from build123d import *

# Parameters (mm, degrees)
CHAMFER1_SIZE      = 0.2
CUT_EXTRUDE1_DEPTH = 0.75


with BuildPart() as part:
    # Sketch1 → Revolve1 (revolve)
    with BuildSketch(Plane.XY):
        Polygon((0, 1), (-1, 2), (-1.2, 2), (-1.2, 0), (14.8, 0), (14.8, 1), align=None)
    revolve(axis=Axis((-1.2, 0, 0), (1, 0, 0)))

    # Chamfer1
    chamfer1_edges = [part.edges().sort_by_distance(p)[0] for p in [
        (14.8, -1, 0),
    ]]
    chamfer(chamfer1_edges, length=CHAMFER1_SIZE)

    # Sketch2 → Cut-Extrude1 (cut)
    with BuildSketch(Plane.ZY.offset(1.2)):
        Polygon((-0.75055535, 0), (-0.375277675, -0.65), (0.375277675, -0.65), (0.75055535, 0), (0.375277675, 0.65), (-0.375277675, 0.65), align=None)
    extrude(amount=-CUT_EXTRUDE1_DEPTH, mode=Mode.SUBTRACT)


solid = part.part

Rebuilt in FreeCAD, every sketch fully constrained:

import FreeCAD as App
import Part
import Sketcher
from FreeCAD import Vector
Q = App.Units.Quantity


def edges_at(feature, points):
    """Names of the edges that pass closest to the given points."""
    edges = feature.Shape.Edges
    near = lambda p: min(range(len(edges)), key=lambda i: edges[i].distToShape(Part.Vertex(*p))[0])
    return sorted({f"Edge{near(p) + 1}" for p in points})


def add_polygon(sketch, points):
    """Adds a closed chain of lines whose ends are joined by coincident constraints."""
    first, n = sketch.GeometryCount, len(points)
    for a, b in zip(points, points[1:] + points[:1]):
        sketch.addGeometry(Part.LineSegment(App.Vector(*a, 0), App.Vector(*b, 0)), False)
    for i in range(n):
        sketch.addConstraint(Sketcher.Constraint("Coincident", first + i, 2, first + (i + 1) % n, 1))

doc = App.newDocument("Part")
body = doc.addObject("PartDesign::Body", "Body")

# Sketch on XY plane
sketch1 = doc.addObject("Sketcher::SketchObject", "Sketch")
body.addObject(sketch1)
sketch1.AttachmentSupport = (doc.XY_Plane, [""])
sketch1.MapMode = "FlatFace"
add_polygon(sketch1, [(0, 1), (-1, 2), (-1.2, 2), (-1.2, 0), (14.8, 0), (14.8, 1)])  # lines 0-5
sketch1.addConstraint([
    Sketcher.Constraint("Horizontal", 1),
    Sketcher.Constraint("Vertical", 2),
    Sketcher.Constraint("Horizontal", 3),
    Sketcher.Constraint("Vertical", 4),
    Sketcher.Constraint("Horizontal", 5),
    Sketcher.Constraint("PointOnObject", 2, 2, -1),
    Sketcher.Constraint("PointOnObject", 5, 2, -2),
    Sketcher.Constraint("DistanceX", 3, 1, 3, 2, 16.0),
    Sketcher.Constraint("DistanceY", 2, 2, 2, 1, 2.0),
    Sketcher.Constraint("DistanceY", 4, 1, 4, 2, 1.0),
    Sketcher.Constraint("Angle", 0, Q("135 deg")),
    Sketcher.Constraint("DistanceX", 1, 2, 1, 1, 0.2),
])
revolution = doc.addObject("PartDesign::Revolution", "Revolution")
body.addObject(revolution)
revolution.Profile = sketch1
revolution.ReferenceAxis = (sketch1, ["H_Axis"])
revolution.Angle = 360
doc.recompute()

chamfer = doc.addObject("PartDesign::Chamfer", "Chamfer")
body.addObject(chamfer)
chamfer.Base = (revolution, edges_at(revolution, [(14.8, -1, 0)]))
chamfer.Size = 0.2

# Sketch on YZ plane
sketch2 = doc.addObject("Sketcher::SketchObject", "Sketch001")
body.addObject(sketch2)
sketch2.AttachmentSupport = (doc.YZ_Plane, [""])
sketch2.MapMode = "FlatFace"
sketch2.AttachmentOffset = App.Placement(Vector(0, 0, -1.2), App.Rotation())
add_polygon(sketch2, [(0, -0.750555), (-0.65, -0.375278), (-0.65, 0.375278), (0, 0.750555), (0.65, 0.375278), (0.65, -0.375278)])  # lines 0-5
sketch2.addConstraint([
    Sketcher.Constraint("Vertical", 1),
    Sketcher.Constraint("Vertical", 4),
    Sketcher.Constraint("Symmetric", 0, 2, 3, 2, -1, 1),
    Sketcher.Constraint("Symmetric", 2, 2, 5, 2, -1, 1),
    Sketcher.Constraint("PointOnObject", 2, 2, -2),
    Sketcher.Constraint("Parallel", 2, 5),
    Sketcher.Constraint("Horizontal", 1, 2, 3, 2),
    Sketcher.Constraint("Angle", 0, Q("150 deg")),
    Sketcher.Constraint("DistanceX", 1, 2, 3, 2, 1.3),
    Sketcher.Constraint("DistanceY", 1, 1, 1, 2, 0.750555),
])
pocket1 = doc.addObject("PartDesign::Pocket", "Pocket")
body.addObject(pocket1)
pocket1.Profile = sketch2
pocket1.Length = 0.75
pocket1.Reversed = True

doc.recompute()
